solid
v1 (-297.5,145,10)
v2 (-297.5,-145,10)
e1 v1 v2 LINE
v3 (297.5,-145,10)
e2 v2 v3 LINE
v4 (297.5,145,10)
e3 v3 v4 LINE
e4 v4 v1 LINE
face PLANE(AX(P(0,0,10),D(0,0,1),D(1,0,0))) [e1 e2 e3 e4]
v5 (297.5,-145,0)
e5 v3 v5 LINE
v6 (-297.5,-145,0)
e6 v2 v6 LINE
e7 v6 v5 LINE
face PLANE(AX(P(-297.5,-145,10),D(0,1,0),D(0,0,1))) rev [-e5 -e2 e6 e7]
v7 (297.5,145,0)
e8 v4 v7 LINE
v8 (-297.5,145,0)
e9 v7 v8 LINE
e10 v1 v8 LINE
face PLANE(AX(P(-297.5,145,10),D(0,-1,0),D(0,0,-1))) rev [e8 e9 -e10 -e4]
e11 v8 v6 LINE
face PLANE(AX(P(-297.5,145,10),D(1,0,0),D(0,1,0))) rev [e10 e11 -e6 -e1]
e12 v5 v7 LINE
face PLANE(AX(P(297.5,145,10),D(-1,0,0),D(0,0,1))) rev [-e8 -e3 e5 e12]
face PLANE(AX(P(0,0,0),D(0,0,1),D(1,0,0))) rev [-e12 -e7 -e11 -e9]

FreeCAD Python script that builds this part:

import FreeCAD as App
import Part
import Sketcher


def add_polygon(sketch, points):
    """Adds a closed chain of lines whose ends are joined by coincident constraints."""
    first, n = sketch.GeometryCount, len(points)
    for a, b in zip(points, points[1:] + points[:1]):
        sketch.addGeometry(Part.LineSegment(App.Vector(*a, 0), App.Vector(*b, 0)), False)
    for i in range(n):
        sketch.addConstraint(Sketcher.Constraint("Coincident", first + i, 2, first + (i + 1) % n, 1))

doc = App.newDocument("Part")
body = doc.addObject("PartDesign::Body", "Body")

sketch1 = body.newObject("Sketcher::SketchObject", "Sketch")
sketch1.AttachmentSupport = (doc.getObject("XY_Plane"), [""])
sketch1.MapMode = "FlatFace"
add_polygon(sketch1, [(-297.5, 145), (-297.5, -145), (297.5, -145), (297.5, 145)])
sketch1.addConstraint([
    Sketcher.Constraint("Vertical", 0),
    Sketcher.Constraint("Horizontal", 1),
    Sketcher.Constraint("Vertical", 2),
    Sketcher.Constraint("Horizontal", 3),
    Sketcher.Constraint("Symmetric", 0, 2, 2, 2, -1, 1),
    Sketcher.Constraint("DistanceX", 1, 1, 1, 2, 595.0),
    Sketcher.Constraint("DistanceY", 0, 2, 0, 1, 290.0),
])
pad1 = body.newObject("PartDesign::Pad", "Pad")
pad1.Profile = sketch1
pad1.Length = 10

doc.recompute()
